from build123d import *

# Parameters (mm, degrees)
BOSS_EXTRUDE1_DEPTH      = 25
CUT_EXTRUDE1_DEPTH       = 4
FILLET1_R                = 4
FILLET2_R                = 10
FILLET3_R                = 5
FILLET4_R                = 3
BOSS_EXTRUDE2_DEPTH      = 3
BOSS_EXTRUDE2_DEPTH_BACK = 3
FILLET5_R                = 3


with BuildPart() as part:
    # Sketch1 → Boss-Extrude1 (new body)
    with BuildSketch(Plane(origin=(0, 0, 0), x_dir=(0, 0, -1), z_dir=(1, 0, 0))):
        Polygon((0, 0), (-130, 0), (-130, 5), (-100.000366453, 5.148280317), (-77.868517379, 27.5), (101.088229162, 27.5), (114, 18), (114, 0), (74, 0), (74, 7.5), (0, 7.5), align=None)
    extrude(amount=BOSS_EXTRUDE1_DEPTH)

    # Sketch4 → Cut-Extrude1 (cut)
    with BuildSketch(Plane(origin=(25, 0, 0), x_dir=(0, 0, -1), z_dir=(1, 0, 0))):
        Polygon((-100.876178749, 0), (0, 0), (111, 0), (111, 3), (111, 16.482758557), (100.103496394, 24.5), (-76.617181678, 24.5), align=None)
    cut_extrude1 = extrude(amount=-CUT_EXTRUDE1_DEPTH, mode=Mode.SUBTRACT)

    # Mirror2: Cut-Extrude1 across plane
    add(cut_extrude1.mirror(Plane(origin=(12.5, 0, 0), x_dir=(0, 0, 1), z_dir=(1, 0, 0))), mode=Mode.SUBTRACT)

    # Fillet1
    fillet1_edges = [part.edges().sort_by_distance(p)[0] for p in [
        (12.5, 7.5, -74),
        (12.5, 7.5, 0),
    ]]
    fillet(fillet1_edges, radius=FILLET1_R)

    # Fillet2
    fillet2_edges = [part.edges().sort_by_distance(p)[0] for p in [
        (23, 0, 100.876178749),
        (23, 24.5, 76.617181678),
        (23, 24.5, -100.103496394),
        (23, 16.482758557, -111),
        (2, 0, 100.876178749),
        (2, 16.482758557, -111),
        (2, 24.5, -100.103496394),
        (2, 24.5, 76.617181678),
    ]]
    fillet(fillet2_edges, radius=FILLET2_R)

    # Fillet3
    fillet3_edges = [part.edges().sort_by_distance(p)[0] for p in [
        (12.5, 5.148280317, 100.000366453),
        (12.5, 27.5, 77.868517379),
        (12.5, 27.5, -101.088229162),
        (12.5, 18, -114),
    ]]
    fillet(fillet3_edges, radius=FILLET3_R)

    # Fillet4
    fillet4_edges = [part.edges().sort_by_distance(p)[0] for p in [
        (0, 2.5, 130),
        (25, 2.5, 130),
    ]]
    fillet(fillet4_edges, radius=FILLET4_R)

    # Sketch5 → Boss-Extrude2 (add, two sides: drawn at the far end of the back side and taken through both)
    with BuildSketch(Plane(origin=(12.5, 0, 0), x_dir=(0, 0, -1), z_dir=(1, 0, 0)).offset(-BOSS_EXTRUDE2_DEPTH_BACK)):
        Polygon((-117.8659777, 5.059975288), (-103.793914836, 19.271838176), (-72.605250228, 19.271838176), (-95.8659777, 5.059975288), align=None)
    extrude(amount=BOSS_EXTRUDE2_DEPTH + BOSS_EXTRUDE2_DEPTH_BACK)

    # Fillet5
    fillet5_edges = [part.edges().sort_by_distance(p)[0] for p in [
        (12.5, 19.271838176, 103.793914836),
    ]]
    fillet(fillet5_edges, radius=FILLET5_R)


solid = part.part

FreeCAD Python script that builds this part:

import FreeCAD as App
import Part
import Sketcher

V = App.Vector


def edges_at(feature, points):
    """Names of the edges that pass closest to the given points."""
    edges = feature.Shape.Edges
    near = lambda p: min(range(len(edges)), key=lambda i: edges[i].distToShape(Part.Vertex(*p))[0])
    return sorted({f"Edge{near(p) + 1}" for p in points})


def add_polygon(sketch, points):
    """Adds a closed chain of lines whose ends are joined by coincident constraints."""
    first, n = sketch.GeometryCount, len(points)
    for a, b in zip(points, points[1:] + points[:1]):
        sketch.addGeometry(Part.LineSegment(App.Vector(*a, 0), App.Vector(*b, 0)), False)
    for i in range(n):
        sketch.addConstraint(Sketcher.Constraint("Coincident", first + i, 2, first + (i + 1) % n, 1))

doc = App.newDocument("Part")
params = doc.addObject("Spreadsheet::Sheet", "Params")
for row, (alias, value) in enumerate([
    ("sketch1_width", "18 mm"),
    ("sketch1_width2", "5 mm"),
    ("sketch1_height", "130 mm"),
    ("sketch1_height2", "74 mm"),
    ("sketch1_height3", "40 mm"),
    ("pad1_length", "25 mm"),
    ("pocket1_length", "4 mm"),
    ("fillet_radius", "4 mm"),
    ("fillet2_radius", "10 mm"),
    ("fillet3_radius", "5 mm"),
    ("fillet4_radius", "3 mm"),
    ("sketch3_height", "22 mm"),
    ("sketch3_length", "20 mm"),
    ("pad2_length", "3 mm"),
    ("pad2_length2", "3 mm"),
    ("fillet5_radius", "3 mm"),
], start=1):
    params.set(f"A{row}", alias)
    params.set(f"B{row}", "=" + value)
    params.setAlias(f"B{row}", alias)

body = doc.addObject("PartDesign::Body", "Body")

# Sketch on YZ plane
sketch1 = body.newObject("Sketcher::SketchObject", "Sketch")
sketch1.AttachmentSupport = (doc.getObject("YZ_Plane"), [""])
sketch1.MapMode = "FlatFace"
add_polygon(sketch1, [(0, 130), (0, 0), (7.5, 0), (7.5, -74), (0, -74), (0, -114), (18, -114), (27.5, -101.088229), (27.5, 77.868517), (5.14828, 100.000366), (5, 130)])  # lines 0-10
sketch1.addConstraint([
    Sketcher.Constraint("Vertical", 0),
    Sketcher.Constraint("Horizontal", 1),
    Sketcher.Constraint("Vertical", 2),
    Sketcher.Constraint("Horizontal", 3),
    Sketcher.Constraint("Vertical", 4),
    Sketcher.Constraint("Horizontal", 5),
    Sketcher.Constraint("Vertical", 7),
    Sketcher.Constraint("Horizontal", 10),
    Sketcher.Constraint("Coincident", 0, 2, -1, 1),
    Sketcher.Constraint("PointOnObject", 3, 2, -2),
    Sketcher.Constraint("DistanceX", 5, 1, 5, 2, 18.0),
    Sketcher.Constraint("DistanceX", 10, 2, 10, 1, 5.0),
    Sketcher.Constraint("DistanceY", 0, 2, 0, 1, 130.0),
    Sketcher.Constraint("DistanceY", 2, 2, 2, 1, 74.0),
    Sketcher.Constraint("DistanceY", 4, 2, 4, 1, 40.0),
    Sketcher.Constraint("Distance", 9, 30.0),
    Sketcher.Constraint("DistanceX", 1, 1, 1, 2, 7.5),
    Sketcher.Constraint("DistanceX", 2, 2, 6, 2, 20.0),
    Sketcher.Constraint("Distance", 6, 16.030091),
    Sketcher.Constraint("DistanceY", 7, 1, 7, 2, 178.956747),
    Sketcher.Constraint("DistanceX", -1, 1, 8, 2, 5.14828),
])
sketch1.setExpression("Constraints[21]", "Params.sketch1_width")
sketch1.setExpression("Constraints[22]", "Params.sketch1_width2")
sketch1.setExpression("Constraints[23]", "Params.sketch1_height")
sketch1.setExpression("Constraints[24]", "Params.sketch1_height2")
sketch1.setExpression("Constraints[25]", "Params.sketch1_height3")
pad1 = body.newObject("PartDesign::Pad", "Pad")
pad1.Profile = sketch1
pad1.setExpression("Length", "Params.pad1_length")

# Sketch on YZ plane
sketch2 = body.newObject("Sketcher::SketchObject", "Sketch001")
sketch2.AttachmentSupport = (doc.getObject("YZ_Plane"), [""])
sketch2.MapMode = "FlatFace"
sketch2.AttachmentOffset = App.Placement(V(0, 0, 25), App.Rotation())
add_polygon(sketch2, [(0, 100.876179), (0, -111), (16.482759, -111), (24.5, -100.103496), (24.5, 76.617182)])  # lines 0-4
sketch2.addConstraint([
    Sketcher.Constraint("Vertical", 0),
    Sketcher.Constraint("Horizontal", 1),
    Sketcher.Constraint("Vertical", 3),
    Sketcher.Constraint("PointOnObject", 0, 2, -2),
    Sketcher.Constraint("DistanceY", 0, 2, -1, 1, 111.0),
    Sketcher.Constraint("DistanceX", -1, 1, 2, 2, 24.5),
    Sketcher.Constraint("DistanceX", 1, 1, 1, 2, 16.482759),
    Sketcher.Constraint("DistanceY", 0, 2, 0, 1, 211.876179),
    Sketcher.Constraint("DistanceY", 3, 1, 3, 2, 176.720678),
    Sketcher.Constraint("Distance", 4, 34.478239),
])
pocket1 = body.newObject("PartDesign::Pocket", "Pocket")
pocket1.Profile = sketch2
pocket1.setExpression("Length", "Params.pocket1_length")
doc.recompute()

datumplane = body.newObject("PartDesign::Plane", "DatumPlane")
datumplane.AttachmentSupport = (doc.getObject("YZ_Plane"), [""])
datumplane.MapMode = "FlatFace"
datumplane.AttachmentOffset = App.Placement(V(0, 0, 12.5), App.Rotation())
mirrored = body.newObject("PartDesign::Mirrored", "Mirrored")
mirrored.Originals = [pocket1]
mirrored.MirrorPlane = (datumplane, [""])
body.Tip = mirrored
doc.recompute()

fillet = body.newObject("PartDesign::Fillet", "Fillet")
fillet.Base = (mirrored, edges_at(mirrored, [(12.5, 7.5, -74), (12.5, 7.5, 0)]))
fillet.setExpression("Radius", "Params.fillet_radius")
doc.recompute()

fillet2 = body.newObject("PartDesign::Fillet", "Fillet001")
fillet2.Base = (fillet, edges_at(fillet, [
    (23, 0, 100.876),
    (23, 24.5, 76.617),
    (23, 24.5, -100.103),
    (23, 16.483, -111),
    (2, 0, 100.876),
    (2, 16.483, -111),
    (2, 24.5, -100.103),
    (2, 24.5, 76.617),
]))
fillet2.setExpression("Radius", "Params.fillet2_radius")
doc.recompute()

fillet3 = body.newObject("PartDesign::Fillet", "Fillet002")
fillet3.Base = (fillet2, edges_at(fillet2, [
    (12.5, 5.148, 100),
    (12.5, 27.5, 77.869),
    (12.5, 27.5, -101.088),
    (12.5, 18, -114),
]))
fillet3.setExpression("Radius", "Params.fillet3_radius")
doc.recompute()

fillet4 = body.newObject("PartDesign::Fillet", "Fillet003")
fillet4.Base = (fillet3, edges_at(fillet3, [(0, 2.5, 130), (25, 2.5, 130)]))
fillet4.setExpression("Radius", "Params.fillet4_radius")

# Sketch on YZ plane
sketch3 = body.newObject("Sketcher::SketchObject", "Sketch002")
sketch3.AttachmentSupport = (doc.getObject("YZ_Plane"), [""])
sketch3.MapMode = "FlatFace"
sketch3.AttachmentOffset = App.Placement(V(0, 0, 12.5), App.Rotation())
add_polygon(sketch3, [(19.271838, 103.793915), (5.059975, 117.865978), (5.059975, 95.865978), (19.271838, 72.60525)])  # lines 0-3
sketch3.addConstraint([
    Sketcher.Constraint("Vertical", 1),
    Sketcher.Constraint("Vertical", 3),
    Sketcher.Constraint("DistanceY", 1, 2, 1, 1, 22.0),
    Sketcher.Constraint("Distance", 0, 20.0),
    Sketcher.Constraint("DistanceY", 3, 1, 3, 2, 31.188665),
    Sketcher.Constraint("DistanceX", -1, 1, 2, 2, 19.271838),
    Sketcher.Constraint("DistanceY", -1, 1, 2, 2, 72.60525),
    Sketcher.Constraint("Distance", 2, 27.258732),
])
sketch3.setExpression("Constraints[6]", "Params.sketch3_height")
sketch3.setExpression("Constraints[7]", "Params.sketch3_length")
pad2 = body.newObject("PartDesign::Pad", "Pad001")
pad2.Profile = sketch3
pad2.Type = "TwoLengths"
pad2.setExpression("Length", "Params.pad2_length")
pad2.setExpression("Length2", "Params.pad2_length2")
doc.recompute()

fillet5 = body.newObject("PartDesign::Fillet", "Fillet004")
fillet5.Base = (pad2, edges_at(pad2, [(12.5, 19.272, 103.794)]))
fillet5.setExpression("Radius", "Params.fillet5_radius")

doc.recompute()
